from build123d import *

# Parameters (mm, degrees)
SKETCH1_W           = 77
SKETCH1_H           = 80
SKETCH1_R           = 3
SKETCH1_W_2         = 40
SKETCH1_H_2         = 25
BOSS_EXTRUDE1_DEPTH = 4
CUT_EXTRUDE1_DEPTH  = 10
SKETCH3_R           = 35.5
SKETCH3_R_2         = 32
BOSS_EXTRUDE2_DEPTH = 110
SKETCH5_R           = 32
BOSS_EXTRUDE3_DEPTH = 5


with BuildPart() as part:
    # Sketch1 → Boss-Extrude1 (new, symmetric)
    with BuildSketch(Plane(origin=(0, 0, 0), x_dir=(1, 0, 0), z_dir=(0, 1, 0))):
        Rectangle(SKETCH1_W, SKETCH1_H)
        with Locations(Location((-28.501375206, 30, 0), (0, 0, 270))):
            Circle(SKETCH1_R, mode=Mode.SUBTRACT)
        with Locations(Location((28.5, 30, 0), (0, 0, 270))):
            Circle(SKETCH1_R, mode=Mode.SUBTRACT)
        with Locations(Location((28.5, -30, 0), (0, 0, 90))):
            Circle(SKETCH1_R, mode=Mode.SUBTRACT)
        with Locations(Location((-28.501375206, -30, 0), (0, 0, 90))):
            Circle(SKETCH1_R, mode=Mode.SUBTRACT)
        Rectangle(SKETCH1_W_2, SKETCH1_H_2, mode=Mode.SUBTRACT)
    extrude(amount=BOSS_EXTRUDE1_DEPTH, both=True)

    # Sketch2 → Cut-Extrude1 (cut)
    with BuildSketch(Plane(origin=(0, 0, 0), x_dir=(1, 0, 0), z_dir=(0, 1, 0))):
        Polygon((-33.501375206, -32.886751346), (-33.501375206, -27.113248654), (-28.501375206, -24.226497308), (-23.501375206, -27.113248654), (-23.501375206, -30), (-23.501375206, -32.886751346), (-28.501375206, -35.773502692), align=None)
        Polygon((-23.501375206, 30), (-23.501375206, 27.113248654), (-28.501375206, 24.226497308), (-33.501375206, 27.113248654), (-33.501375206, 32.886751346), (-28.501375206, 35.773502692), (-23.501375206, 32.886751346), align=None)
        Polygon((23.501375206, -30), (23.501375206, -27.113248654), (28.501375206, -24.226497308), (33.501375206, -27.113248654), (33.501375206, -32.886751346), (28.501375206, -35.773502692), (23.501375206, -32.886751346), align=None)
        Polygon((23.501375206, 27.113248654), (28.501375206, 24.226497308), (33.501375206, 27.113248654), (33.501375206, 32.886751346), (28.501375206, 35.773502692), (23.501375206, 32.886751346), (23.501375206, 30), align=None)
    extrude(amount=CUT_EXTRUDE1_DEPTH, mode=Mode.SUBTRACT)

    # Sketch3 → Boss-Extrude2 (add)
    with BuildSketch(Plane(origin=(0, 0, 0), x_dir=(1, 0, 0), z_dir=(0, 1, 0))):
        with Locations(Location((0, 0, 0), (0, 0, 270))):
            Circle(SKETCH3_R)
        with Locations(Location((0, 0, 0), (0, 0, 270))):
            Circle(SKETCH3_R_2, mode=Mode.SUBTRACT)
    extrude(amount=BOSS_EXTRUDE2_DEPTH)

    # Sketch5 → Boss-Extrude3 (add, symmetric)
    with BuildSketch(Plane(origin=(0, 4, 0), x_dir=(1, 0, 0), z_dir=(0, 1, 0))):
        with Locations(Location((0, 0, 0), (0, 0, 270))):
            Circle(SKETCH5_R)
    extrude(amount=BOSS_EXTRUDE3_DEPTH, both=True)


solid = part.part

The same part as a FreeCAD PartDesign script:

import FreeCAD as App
import Part
import Sketcher
from FreeCAD import Vector
Q = App.Units.Quantity

doc = App.newDocument("Part")
params = doc.addObject("Spreadsheet::Sheet", "Params")
for row, (alias, value) in enumerate([
    ("sketch1_diameter", "6 mm"),
    ("sketch1_width", "77 mm"),
    ("sketch1_width2", "40 mm"),
    ("sketch1_height", "80 mm"),
    ("sketch1_height2", "25 mm"),
    ("pad1_length", "8 mm"),
    ("pocket1_length", "10 mm"),
    ("sketch3_diameter", "71 mm"),
    ("sketch3_diameter2", "64 mm"),
    ("pad2_length", "110 mm"),
    ("sketch4_diameter", "64 mm"),
    ("pad3_length", "10 mm"),
], start=1):
    params.set(f"A{row}", alias)
    params.set(f"B{row}", "=" + value)
    params.setAlias(f"B{row}", alias)

body = doc.addObject("PartDesign::Body", "Body")

sketch1 = body.newObject("Sketcher::SketchObject", "Sketch")
sketch1.AttachmentSupport = (doc.getObject("XZ_Plane"), [""])
sketch1.MapMode = "FlatFace"
sketch1.addGeometry([
    Part.LineSegment(Vector(-38.5, -40, 0), Vector(-38.5, 40, 0)),
    Part.LineSegment(Vector(-38.5, 40, 0), Vector(38.5, 40, 0)),
    Part.LineSegment(Vector(38.5, 40, 0), Vector(38.5, -40, 0)),
    Part.LineSegment(Vector(38.5, -40, 0), Vector(-38.5, -40, 0)),
    Part.Circle(Vector(-28.5, 30, 0), Vector(0, 0, 1), 3),
    Part.Circle(Vector(28.5, 30, 0), Vector(0, 0, 1), 3),
    Part.Circle(Vector(-28.5, -30, 0), Vector(0, 0, 1), 3),
    Part.LineSegment(Vector(20, 12.5, 0), Vector(-20, 12.5, 0)),
    Part.LineSegment(Vector(-20, 12.5, 0), Vector(-20, -12.5, 0)),
    Part.LineSegment(Vector(-20, -12.5, 0), Vector(20, -12.5, 0)),
    Part.LineSegment(Vector(20, -12.5, 0), Vector(20, 12.5, 0)),
    Part.Circle(Vector(28.5, -30, 0), Vector(0, 0, 1), 3),
], False)
sketch1.addConstraint([
    Sketcher.Constraint("Coincident", 0, 2, 1, 1),
    Sketcher.Constraint("Coincident", 1, 2, 2, 1),
    Sketcher.Constraint("Coincident", 2, 2, 3, 1),
    Sketcher.Constraint("Coincident", 3, 2, 0, 1),
    Sketcher.Constraint("Coincident", 7, 2, 8, 1),
    Sketcher.Constraint("Coincident", 8, 2, 9, 1),
    Sketcher.Constraint("Coincident", 9, 2, 10, 1),
    Sketcher.Constraint("Coincident", 10, 2, 7, 1),
    Sketcher.Constraint("Vertical", 0),
    Sketcher.Constraint("Horizontal", 1),
    Sketcher.Constraint("Vertical", 2),
    Sketcher.Constraint("Horizontal", 3),
    Sketcher.Constraint("Horizontal", 7),
    Sketcher.Constraint("Vertical", 8),
    Sketcher.Constraint("Horizontal", 9),
    Sketcher.Constraint("Vertical", 10),
    Sketcher.Constraint("Equal", 4, 5),
    Sketcher.Constraint("Equal", 5, 6),
    Sketcher.Constraint("Equal", 6, 11),
    Sketcher.Constraint("Symmetric", 0, 2, 2, 2, -1, 1),
    Sketcher.Constraint("Symmetric", 7, 2, 9, 2, -1, 1),
    Sketcher.Constraint("Symmetric", 4, 3, 6, 3, -1),
    Sketcher.Constraint("Symmetric", 5, 3, 11, 3, -1),
    Sketcher.Constraint("Horizontal", 4, 3, 5, 3),
    Sketcher.Constraint("Diameter", 4, Q("6 mm")),
    Sketcher.Constraint("DistanceX", 1, 1, 1, 2, Q("77 mm")),
    Sketcher.Constraint("DistanceX", 7, 2, 7, 1, Q("40 mm")),
    Sketcher.Constraint("DistanceY", 0, 1, 0, 2, Q("80 mm")),
    Sketcher.Constraint("DistanceY", 8, 2, 8, 1, Q("25 mm")),
    Sketcher.Constraint("DistanceY", -1, 1, 4, 3, Q("30 mm")),
    Sketcher.Constraint("DistanceX", 0, 2, 5, 3, Q("67 mm")),
    Sketcher.Constraint("DistanceX", 4, 3, -1, 1, Q("28.501375 mm")),
])
sketch1.setExpression("Constraints[24]", "Params.sketch1_diameter")
sketch1.setExpression("Constraints[25]", "Params.sketch1_width")
sketch1.setExpression("Constraints[26]", "Params.sketch1_width2")
sketch1.setExpression("Constraints[27]", "Params.sketch1_height")
sketch1.setExpression("Constraints[28]", "Params.sketch1_height2")
pad1 = body.newObject("PartDesign::Pad", "Pad")
pad1.Profile = sketch1
pad1.setExpression("Length", "Params.pad1_length")
pad1.Midplane = True

sketch2 = body.newObject("Sketcher::SketchObject", "Sketch001")
sketch2.AttachmentSupport = (doc.getObject("XZ_Plane"), [""])
sketch2.MapMode = "FlatFace"
sketch2.addGeometry([
    Part.LineSegment(Vector(-34, 27, 0), Vector(-34, 33, 0)),
    Part.LineSegment(Vector(-34, 33, 0), Vector(-29, 36, 0)),
    Part.LineSegment(Vector(-29, 36, 0), Vector(-24, 33, 0)),
    Part.LineSegment(Vector(-24, 33, 0), Vector(-24, 27, 0)),
    Part.LineSegment(Vector(-24, 27, 0), Vector(-29, 24, 0)),
    Part.LineSegment(Vector(-29, 24, 0), Vector(-34, 27, 0)),
    Part.LineSegment(Vector(-24, -27, 0), Vector(-24, -33, 0)),
    Part.LineSegment(Vector(-24, -33, 0), Vector(-29, -36, 0)),
    Part.LineSegment(Vector(-29, -36, 0), Vector(-34, -33, 0)),
    Part.LineSegment(Vector(-34, -33, 0), Vector(-34, -27, 0)),
    Part.LineSegment(Vector(-34, -27, 0), Vector(-29, -24, 0)),
    Part.LineSegment(Vector(-29, -24, 0), Vector(-24, -27, 0)),
    Part.LineSegment(Vector(24, 27, 0), Vector(24, 33, 0)),
    Part.LineSegment(Vector(24, 33, 0), Vector(29, 36, 0)),
    Part.LineSegment(Vector(29, 36, 0), Vector(34, 33, 0)),
    Part.LineSegment(Vector(34, 33, 0), Vector(34, 27, 0)),
    Part.LineSegment(Vector(34, 27, 0), Vector(29, 24, 0)),
    Part.LineSegment(Vector(29, 24, 0), Vector(24, 27, 0)),
    Part.LineSegment(Vector(24, -27, 0), Vector(29, -24, 0)),
    Part.LineSegment(Vector(29, -24, 0), Vector(34, -27, 0)),
    Part.LineSegment(Vector(34, -27, 0), Vector(34, -33, 0)),
    Part.LineSegment(Vector(34, -33, 0), Vector(29, -36, 0)),
    Part.LineSegment(Vector(29, -36, 0), Vector(24, -33, 0)),
    Part.LineSegment(Vector(24, -33, 0), Vector(24, -27, 0)),
], False)
sketch2.addConstraint([
    Sketcher.Constraint("Coincident", 0, 2, 1, 1),
    Sketcher.Constraint("Coincident", 1, 2, 2, 1),
    Sketcher.Constraint("Coincident", 2, 2, 3, 1),
    Sketcher.Constraint("Coincident", 3, 2, 4, 1),
    Sketcher.Constraint("Coincident", 4, 2, 5, 1),
    Sketcher.Constraint("Coincident", 5, 2, 0, 1),
    Sketcher.Constraint("Coincident", 6, 2, 7, 1),
    Sketcher.Constraint("Coincident", 7, 2, 8, 1),
    Sketcher.Constraint("Coincident", 8, 2, 9, 1),
    Sketcher.Constraint("Coincident", 9, 2, 10, 1),
    Sketcher.Constraint("Coincident", 10, 2, 11, 1),
    Sketcher.Constraint("Coincident", 11, 2, 6, 1),
    Sketcher.Constraint("Coincident", 12, 2, 13, 1),
    Sketcher.Constraint("Coincident", 13, 2, 14, 1),
    Sketcher.Constraint("Coincident", 14, 2, 15, 1),
    Sketcher.Constraint("Coincident", 15, 2, 16, 1),
    Sketcher.Constraint("Coincident", 16, 2, 17, 1),
    Sketcher.Constraint("Coincident", 17, 2, 12, 1),
    Sketcher.Constraint("Coincident", 18, 2, 19, 1),
    Sketcher.Constraint("Coincident", 19, 2, 20, 1),
    Sketcher.Constraint("Coincident", 20, 2, 21, 1),
    Sketcher.Constraint("Coincident", 21, 2, 22, 1),
    Sketcher.Constraint("Coincident", 22, 2, 23, 1),
    Sketcher.Constraint("Coincident", 23, 2, 18, 1),
    Sketcher.Constraint("Vertical", 0),
    Sketcher.Constraint("Vertical", 3),
    Sketcher.Constraint("Vertical", 6),
    Sketcher.Constraint("Vertical", 9),
    Sketcher.Constraint("Vertical", 12),
    Sketcher.Constraint("Vertical", 15),
    Sketcher.Constraint("Vertical", 20),
    Sketcher.Constraint("Vertical", 23),
    Sketcher.Constraint("Symmetric", 6, 2, 12, 2, -1, 1),
    Sketcher.Constraint("Symmetric", 7, 2, 13, 2, -1, 1),
    Sketcher.Constraint("Symmetric", 8, 2, 14, 2, -1, 1),
    Sketcher.Constraint("Symmetric", 10, 2, 16, 2, -1, 1),
    Sketcher.Constraint("Symmetric", 4, 2, 18, 2, -1, 1),
    Sketcher.Constraint("Symmetric", 5, 2, 19, 2, -1, 1),
    Sketcher.Constraint("Symmetric", 1, 2, 21, 2, -1, 1),
    Sketcher.Constraint("Symmetric", 2, 2, 22, 2, -1, 1),
    Sketcher.Constraint("Symmetric", 2, 2, 12, 2, -2),
    Sketcher.Constraint("Symmetric", 1, 2, 13, 2, -2),
    Sketcher.Constraint("Symmetric", 0, 2, 14, 2, -2),
    Sketcher.Constraint("Symmetric", 4, 2, 16, 2, -2),
    Sketcher.Constraint("Parallel", 1, 4),
    Sketcher.Constraint("Parallel", 2, 5),
    Sketcher.Constraint("Parallel", 4, 7),
    Sketcher.Constraint("Parallel", 7, 10),
    Sketcher.Constraint("Parallel", 8, 11),
    Sketcher.Constraint("Parallel", 13, 16),
    Sketcher.Constraint("Parallel", 14, 17),
    Sketcher.Constraint("Parallel", 16, 18),
    Sketcher.Constraint("Parallel", 18, 21),
    Sketcher.Constraint("Horizontal", 0, 2, 2, 2),
    Sketcher.Constraint("Horizontal", 3, 2, 5, 2),
    Sketcher.Constraint("Angle", 1, Q("30 deg")),
    Sketcher.Constraint("DistanceX", 0, 2, 1, 2, Q("5 mm")),
    Sketcher.Constraint("DistanceY", 6, 2, 3, 2, Q("60 mm")),
    Sketcher.Constraint("DistanceY", 0, 1, 0, 2, Q("5.773503 mm")),
    Sketcher.Constraint("DistanceX", 2, 2, 12, 2, Q("47.00275 mm")),
])
pocket1 = body.newObject("PartDesign::Pocket", "Pocket")
pocket1.Profile = sketch2
pocket1.setExpression("Length", "Params.pocket1_length")

sketch3 = body.newObject("Sketcher::SketchObject", "Sketch002")
sketch3.AttachmentSupport = (doc.getObject("XZ_Plane"), [""])
sketch3.MapMode = "FlatFace"
sketch3.addGeometry([
    Part.Circle(Vector(0, 0, 0), Vector(0, 0, 1), 36),
    Part.Circle(Vector(0, 0, 0), Vector(0, 0, 1), 32),
], False)
sketch3.addConstraint([
    Sketcher.Constraint("Coincident", 0, 3, -1, 1),
    Sketcher.Constraint("Coincident", 1, 3, -1, 1),
    Sketcher.Constraint("Diameter", 0, Q("71 mm")),
    Sketcher.Constraint("Diameter", 1, Q("64 mm")),
])
sketch3.setExpression("Constraints[2]", "Params.sketch3_diameter")
sketch3.setExpression("Constraints[3]", "Params.sketch3_diameter2")
pad2 = body.newObject("PartDesign::Pad", "Pad001")
pad2.Profile = sketch3
pad2.setExpression("Length", "Params.pad2_length")
pad2.Reversed = True

sketch4 = body.newObject("Sketcher::SketchObject", "Sketch003")
sketch4.AttachmentSupport = (doc.getObject("XZ_Plane"), [""])
sketch4.MapMode = "FlatFace"
sketch4.AttachmentOffset = App.Placement(Vector(0, 0, -4), App.Rotation())
sketch4.addGeometry(Part.Circle(Vector(0, 0, 0), Vector(0, 0, 1), 32), False)
sketch4.addConstraint([
    Sketcher.Constraint("Coincident", 0, 3, -1, 1),
    Sketcher.Constraint("Diameter", 0, Q("64 mm")),
])
sketch4.setExpression("Constraints[1]", "Params.sketch4_diameter")
pad3 = body.newObject("PartDesign::Pad", "Pad002")
pad3.Profile = sketch4
pad3.setExpression("Length", "Params.pad3_length")
pad3.Midplane = True

doc.recompute()
